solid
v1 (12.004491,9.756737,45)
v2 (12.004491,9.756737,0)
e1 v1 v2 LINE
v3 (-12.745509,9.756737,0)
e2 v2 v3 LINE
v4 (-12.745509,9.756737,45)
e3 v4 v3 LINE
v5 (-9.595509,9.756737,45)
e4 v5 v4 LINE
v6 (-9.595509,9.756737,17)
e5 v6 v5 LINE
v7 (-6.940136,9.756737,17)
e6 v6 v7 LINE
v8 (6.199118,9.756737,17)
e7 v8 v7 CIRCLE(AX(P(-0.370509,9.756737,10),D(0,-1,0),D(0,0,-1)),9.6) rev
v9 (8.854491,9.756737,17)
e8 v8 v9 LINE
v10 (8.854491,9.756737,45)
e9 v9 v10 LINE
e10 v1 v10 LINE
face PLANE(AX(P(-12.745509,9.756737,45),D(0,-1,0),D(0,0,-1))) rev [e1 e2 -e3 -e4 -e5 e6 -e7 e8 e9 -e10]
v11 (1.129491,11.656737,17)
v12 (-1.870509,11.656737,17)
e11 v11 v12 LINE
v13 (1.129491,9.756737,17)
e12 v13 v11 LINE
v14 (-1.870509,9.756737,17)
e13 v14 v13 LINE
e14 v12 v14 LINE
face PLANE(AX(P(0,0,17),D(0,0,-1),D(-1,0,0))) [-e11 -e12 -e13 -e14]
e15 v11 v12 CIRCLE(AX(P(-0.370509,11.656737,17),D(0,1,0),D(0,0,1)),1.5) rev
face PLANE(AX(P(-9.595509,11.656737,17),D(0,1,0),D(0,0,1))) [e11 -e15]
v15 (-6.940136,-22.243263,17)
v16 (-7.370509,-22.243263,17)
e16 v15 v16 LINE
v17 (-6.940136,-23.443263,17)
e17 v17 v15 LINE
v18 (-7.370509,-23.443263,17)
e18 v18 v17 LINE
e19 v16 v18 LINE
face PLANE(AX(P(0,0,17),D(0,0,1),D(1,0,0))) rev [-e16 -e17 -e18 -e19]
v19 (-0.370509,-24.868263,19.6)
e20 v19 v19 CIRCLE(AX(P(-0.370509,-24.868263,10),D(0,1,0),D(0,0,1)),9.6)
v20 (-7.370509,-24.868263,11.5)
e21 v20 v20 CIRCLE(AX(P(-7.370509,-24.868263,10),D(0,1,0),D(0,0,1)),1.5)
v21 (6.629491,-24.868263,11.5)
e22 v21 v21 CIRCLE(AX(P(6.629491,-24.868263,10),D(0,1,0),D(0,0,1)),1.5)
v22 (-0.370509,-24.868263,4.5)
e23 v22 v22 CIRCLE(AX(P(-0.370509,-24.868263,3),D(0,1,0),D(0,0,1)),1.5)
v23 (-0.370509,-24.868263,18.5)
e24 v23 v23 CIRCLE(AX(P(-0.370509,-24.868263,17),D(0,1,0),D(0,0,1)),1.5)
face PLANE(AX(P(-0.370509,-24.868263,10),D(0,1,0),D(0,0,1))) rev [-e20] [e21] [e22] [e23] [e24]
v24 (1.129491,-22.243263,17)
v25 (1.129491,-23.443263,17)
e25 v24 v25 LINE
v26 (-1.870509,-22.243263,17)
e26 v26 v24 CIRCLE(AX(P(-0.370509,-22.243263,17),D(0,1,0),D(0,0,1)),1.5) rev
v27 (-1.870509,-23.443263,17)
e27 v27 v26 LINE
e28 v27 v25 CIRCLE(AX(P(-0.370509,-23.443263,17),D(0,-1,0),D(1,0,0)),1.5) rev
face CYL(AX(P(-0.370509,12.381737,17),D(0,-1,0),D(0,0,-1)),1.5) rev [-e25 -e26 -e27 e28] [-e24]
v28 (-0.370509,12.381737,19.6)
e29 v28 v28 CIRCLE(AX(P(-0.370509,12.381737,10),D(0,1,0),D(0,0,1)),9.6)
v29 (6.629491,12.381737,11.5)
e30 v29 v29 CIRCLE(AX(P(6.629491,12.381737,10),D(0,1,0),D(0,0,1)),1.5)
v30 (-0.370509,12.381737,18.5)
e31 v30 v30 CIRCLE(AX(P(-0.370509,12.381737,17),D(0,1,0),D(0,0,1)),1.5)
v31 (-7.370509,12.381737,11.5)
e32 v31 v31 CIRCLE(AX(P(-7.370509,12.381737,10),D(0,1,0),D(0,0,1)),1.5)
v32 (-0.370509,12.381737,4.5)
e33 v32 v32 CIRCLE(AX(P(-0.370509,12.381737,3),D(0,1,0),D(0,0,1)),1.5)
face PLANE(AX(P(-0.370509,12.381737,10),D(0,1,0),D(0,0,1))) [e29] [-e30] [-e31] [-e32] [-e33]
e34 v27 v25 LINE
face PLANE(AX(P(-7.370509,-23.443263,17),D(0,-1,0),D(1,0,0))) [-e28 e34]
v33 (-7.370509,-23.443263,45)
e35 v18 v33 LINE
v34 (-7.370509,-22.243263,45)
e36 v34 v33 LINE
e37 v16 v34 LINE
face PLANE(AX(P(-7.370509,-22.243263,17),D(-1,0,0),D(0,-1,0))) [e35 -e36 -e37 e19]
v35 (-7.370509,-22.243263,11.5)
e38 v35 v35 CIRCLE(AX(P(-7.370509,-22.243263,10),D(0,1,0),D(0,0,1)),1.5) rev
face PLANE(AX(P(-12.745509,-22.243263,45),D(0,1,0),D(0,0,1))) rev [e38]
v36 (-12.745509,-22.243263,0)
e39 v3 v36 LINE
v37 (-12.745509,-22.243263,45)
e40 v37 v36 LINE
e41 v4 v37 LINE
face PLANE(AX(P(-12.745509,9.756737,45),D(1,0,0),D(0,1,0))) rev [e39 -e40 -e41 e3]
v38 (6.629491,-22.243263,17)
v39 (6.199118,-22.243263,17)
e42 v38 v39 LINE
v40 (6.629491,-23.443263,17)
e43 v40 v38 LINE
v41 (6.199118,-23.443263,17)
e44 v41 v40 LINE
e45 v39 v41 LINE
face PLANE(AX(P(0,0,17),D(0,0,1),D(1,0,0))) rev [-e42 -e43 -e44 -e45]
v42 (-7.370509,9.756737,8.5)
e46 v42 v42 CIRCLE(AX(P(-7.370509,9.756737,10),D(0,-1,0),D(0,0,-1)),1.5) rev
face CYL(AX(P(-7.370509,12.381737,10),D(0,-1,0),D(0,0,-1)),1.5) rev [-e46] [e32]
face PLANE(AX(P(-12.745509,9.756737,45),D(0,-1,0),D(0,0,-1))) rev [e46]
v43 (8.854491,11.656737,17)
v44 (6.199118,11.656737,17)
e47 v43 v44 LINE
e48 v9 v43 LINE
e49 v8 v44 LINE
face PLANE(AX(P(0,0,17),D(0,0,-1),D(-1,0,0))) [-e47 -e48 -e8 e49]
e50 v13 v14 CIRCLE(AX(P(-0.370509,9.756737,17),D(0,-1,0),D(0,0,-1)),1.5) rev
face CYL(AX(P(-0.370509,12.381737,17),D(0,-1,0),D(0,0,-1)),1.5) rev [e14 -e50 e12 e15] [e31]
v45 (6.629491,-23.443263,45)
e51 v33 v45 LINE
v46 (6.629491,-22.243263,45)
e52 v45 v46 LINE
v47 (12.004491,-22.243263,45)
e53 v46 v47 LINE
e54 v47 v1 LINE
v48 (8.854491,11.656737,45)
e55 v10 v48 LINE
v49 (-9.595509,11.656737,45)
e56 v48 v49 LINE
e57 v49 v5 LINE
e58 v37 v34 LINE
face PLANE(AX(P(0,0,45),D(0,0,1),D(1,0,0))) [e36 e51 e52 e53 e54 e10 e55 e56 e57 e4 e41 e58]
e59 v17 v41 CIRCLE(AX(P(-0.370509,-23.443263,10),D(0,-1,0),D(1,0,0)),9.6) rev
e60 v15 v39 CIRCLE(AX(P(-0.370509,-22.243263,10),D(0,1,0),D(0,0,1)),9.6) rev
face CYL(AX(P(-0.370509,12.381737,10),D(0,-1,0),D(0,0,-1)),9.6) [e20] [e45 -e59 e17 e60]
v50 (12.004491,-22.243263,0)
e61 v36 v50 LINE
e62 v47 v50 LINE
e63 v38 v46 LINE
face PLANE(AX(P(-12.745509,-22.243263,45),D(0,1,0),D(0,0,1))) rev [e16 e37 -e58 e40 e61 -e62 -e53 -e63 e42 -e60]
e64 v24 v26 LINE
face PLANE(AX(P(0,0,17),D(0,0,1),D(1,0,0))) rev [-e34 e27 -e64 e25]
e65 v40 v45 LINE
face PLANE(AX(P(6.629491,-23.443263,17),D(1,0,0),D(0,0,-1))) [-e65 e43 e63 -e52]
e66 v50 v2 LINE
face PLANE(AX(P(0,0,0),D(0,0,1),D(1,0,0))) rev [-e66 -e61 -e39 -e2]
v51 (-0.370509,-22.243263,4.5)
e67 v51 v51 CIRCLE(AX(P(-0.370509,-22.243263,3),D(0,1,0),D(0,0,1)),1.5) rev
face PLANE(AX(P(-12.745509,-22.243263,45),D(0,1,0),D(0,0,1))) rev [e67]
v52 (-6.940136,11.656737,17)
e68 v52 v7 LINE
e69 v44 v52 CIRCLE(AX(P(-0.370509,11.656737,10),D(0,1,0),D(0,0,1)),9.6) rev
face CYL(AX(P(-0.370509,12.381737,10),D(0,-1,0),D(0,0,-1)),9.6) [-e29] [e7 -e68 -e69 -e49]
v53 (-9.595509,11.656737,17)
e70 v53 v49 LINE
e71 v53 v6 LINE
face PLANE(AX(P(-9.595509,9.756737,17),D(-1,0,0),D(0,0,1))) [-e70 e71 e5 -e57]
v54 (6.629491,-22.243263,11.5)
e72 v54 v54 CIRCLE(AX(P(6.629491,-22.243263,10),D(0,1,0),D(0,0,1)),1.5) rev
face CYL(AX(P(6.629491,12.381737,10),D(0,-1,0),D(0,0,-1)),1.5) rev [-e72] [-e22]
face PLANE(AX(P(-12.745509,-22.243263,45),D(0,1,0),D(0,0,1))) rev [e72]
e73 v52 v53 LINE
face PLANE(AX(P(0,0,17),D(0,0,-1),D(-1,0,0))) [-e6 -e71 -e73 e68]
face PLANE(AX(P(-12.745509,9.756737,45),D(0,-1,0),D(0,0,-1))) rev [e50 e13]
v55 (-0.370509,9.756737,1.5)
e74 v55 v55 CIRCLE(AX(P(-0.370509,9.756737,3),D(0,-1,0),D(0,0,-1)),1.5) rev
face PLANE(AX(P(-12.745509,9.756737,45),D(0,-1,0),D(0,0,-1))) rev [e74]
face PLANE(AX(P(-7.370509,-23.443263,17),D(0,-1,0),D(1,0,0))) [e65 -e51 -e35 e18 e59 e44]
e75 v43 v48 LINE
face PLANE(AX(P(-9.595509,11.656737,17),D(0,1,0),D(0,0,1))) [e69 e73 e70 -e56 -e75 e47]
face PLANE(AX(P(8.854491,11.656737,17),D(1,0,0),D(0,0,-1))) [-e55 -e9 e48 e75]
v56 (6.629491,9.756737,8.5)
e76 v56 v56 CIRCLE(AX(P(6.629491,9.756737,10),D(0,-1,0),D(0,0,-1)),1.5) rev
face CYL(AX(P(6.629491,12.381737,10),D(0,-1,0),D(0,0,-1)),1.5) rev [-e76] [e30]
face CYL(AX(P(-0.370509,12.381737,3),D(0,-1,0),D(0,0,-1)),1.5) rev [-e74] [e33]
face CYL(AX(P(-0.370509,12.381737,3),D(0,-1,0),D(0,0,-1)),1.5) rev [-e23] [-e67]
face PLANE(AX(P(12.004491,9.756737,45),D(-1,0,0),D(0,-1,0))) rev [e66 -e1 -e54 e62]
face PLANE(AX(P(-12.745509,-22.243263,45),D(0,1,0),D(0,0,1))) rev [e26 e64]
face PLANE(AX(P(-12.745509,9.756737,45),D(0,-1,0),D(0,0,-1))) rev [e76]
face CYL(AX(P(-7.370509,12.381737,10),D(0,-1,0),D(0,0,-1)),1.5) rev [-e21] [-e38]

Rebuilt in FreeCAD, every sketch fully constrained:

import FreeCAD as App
import Part
import Sketcher
Q = App.Units.Quantity


def add_polygon(sketch, points):
    """Adds a closed chain of lines whose ends are joined by coincident constraints."""
    first, n = sketch.GeometryCount, len(points)
    for a, b in zip(points, points[1:] + points[:1]):
        sketch.addGeometry(Part.LineSegment(App.Vector(*a, 0), App.Vector(*b, 0)), False)
    for i in range(n):
        sketch.addConstraint(Sketcher.Constraint("Coincident", first + i, 2, first + (i + 1) % n, 1))

doc = App.newDocument("Part")
body = doc.addObject("PartDesign::Body", "Body")

# Sketch on XY plane
sketch1 = body.newObject("Sketcher::SketchObject", "Sketch")
sketch1.AttachmentSupport = (doc.getObject("XY_Plane"), [""])
sketch1.MapMode = "FlatFace"
add_polygon(sketch1, [(-13, 10), (-13, -22), (12, -22), (12, 10)])  # lines 0-3
sketch1.addConstraint(Sketcher.Constraint("Vertical", 0))
sketch1.addConstraint(Sketcher.Constraint("Horizontal", 1))
sketch1.addConstraint(Sketcher.Constraint("Vertical", 2))
sketch1.addConstraint(Sketcher.Constraint("Horizontal", 3))
sketch1.addConstraint(Sketcher.Constraint("DistanceY", 0, 2, 0, 1, Q("32 mm")))
sketch1.addConstraint(Sketcher.Constraint("DistanceX", 1, 1, 1, 2, Q("24.75 mm")))
sketch1.addConstraint(Sketcher.Constraint("DistanceX", 0, 2, -1, 1, Q("12.745509 mm")))
sketch1.addConstraint(Sketcher.Constraint("DistanceY", 0, 2, -1, 1, Q("22.243263 mm")))
pad1 = body.newObject("PartDesign::Pad", "Pad")
pad1.Profile = sketch1
pad1.Length = 45

# Sketch on XY plane
sketch2 = body.newObject("Sketcher::SketchObject", "Sketch001")
sketch2.AttachmentSupport = (doc.getObject("XY_Plane"), [""])
sketch2.MapMode = "FlatFace"
sketch2.AttachmentOffset = App.Placement(App.Vector(0, 0, 45), App.Rotation())
add_polygon(sketch2, [(-9.6, 11.7), (-9.6, 9.8), (8.9, 9.8), (8.9, 11.7)])  # lines 0-3
add_polygon(sketch2, [(-7.4, -22.2), (-7.4, -23.4), (6.6, -23.4), (6.6, -22.2)])  # lines 4-7
sketch2.addConstraint(Sketcher.Constraint("Vertical", 0))
sketch2.addConstraint(Sketcher.Constraint("Horizontal", 1))
sketch2.addConstraint(Sketcher.Constraint("Vertical", 2))
sketch2.addConstraint(Sketcher.Constraint("Horizontal", 3))
sketch2.addConstraint(Sketcher.Constraint("Vertical", 4))
sketch2.addConstraint(Sketcher.Constraint("Horizontal", 5))
sketch2.addConstraint(Sketcher.Constraint("Vertical", 6))
sketch2.addConstraint(Sketcher.Constraint("Horizontal", 7))
sketch2.addConstraint(Sketcher.Constraint("DistanceX", 5, 1, 5, 2, Q("14 mm")))
sketch2.addConstraint(Sketcher.Constraint("DistanceY", 0, 2, 0, 1, Q("1.9 mm")))
sketch2.addConstraint(Sketcher.Constraint("DistanceY", 4, 2, 4, 1, Q("1.2 mm")))
sketch2.addConstraint(Sketcher.Constraint("DistanceY", 6, 2, 1, 2, Q("32 mm")))
sketch2.addConstraint(Sketcher.Constraint("DistanceX", 1, 1, 1, 2, Q("18.45 mm")))
sketch2.addConstraint(Sketcher.Constraint("DistanceX", 0, 2, 4, 2, Q("2.225 mm")))
sketch2.addConstraint(Sketcher.Constraint("DistanceX", 0, 2, -1, 1, Q("9.595509 mm")))
sketch2.addConstraint(Sketcher.Constraint("DistanceY", -1, 1, 0, 2, Q("9.756737 mm")))
pad2 = body.newObject("PartDesign::Pad", "Pad001")
pad2.Profile = sketch2
pad2.Length = 28
pad2.Reversed = True

# Sketch on XZ plane
sketch3 = body.newObject("Sketcher::SketchObject", "Sketch002")
sketch3.AttachmentSupport = (doc.getObject("XZ_Plane"), [""])
sketch3.MapMode = "FlatFace"
sketch3.AttachmentOffset = App.Placement(App.Vector(0, 0, 6.243263), App.Rotation())
sketch3.addGeometry(Part.Circle(App.Vector(-0.4, 10, 0), App.Vector(0, 0, 1), 9.6), False)
sketch3.addGeometry(Part.Circle(App.Vector(-0.4, 3, 0), App.Vector(0, 0, 1), 1.5), False)
sketch3.addGeometry(Part.Circle(App.Vector(-7.4, 10, 0), App.Vector(0, 0, 1), 1.5), False)
sketch3.addGeometry(Part.Circle(App.Vector(6.6, 10, 0), App.Vector(0, 0, 1), 1.5), False)
sketch3.addGeometry(Part.Circle(App.Vector(-0.4, 17, 0), App.Vector(0, 0, 1), 1.5), False)
sketch3.addConstraint(Sketcher.Constraint("Equal", 1, 2))
sketch3.addConstraint(Sketcher.Constraint("Equal", 2, 3))
sketch3.addConstraint(Sketcher.Constraint("Equal", 3, 4))
sketch3.addConstraint(Sketcher.Constraint("Horizontal", 0, 3, 2, 3))
sketch3.addConstraint(Sketcher.Constraint("Horizontal", 2, 3, 3, 3))
sketch3.addConstraint(Sketcher.Constraint("Vertical", 0, 3, 1, 3))
sketch3.addConstraint(Sketcher.Constraint("Vertical", 1, 3, 4, 3))
sketch3.addConstraint(Sketcher.Constraint("Diameter", 1, Q("3 mm")))
sketch3.addConstraint(Sketcher.Constraint("Diameter", 0, Q("19.2 mm")))
sketch3.addConstraint(Sketcher.Constraint("DistanceY", -1, 1, 0, 3, Q("10 mm")))
sketch3.addConstraint(Sketcher.Constraint("DistanceY", -1, 1, 1, 3, Q("3 mm")))
sketch3.addConstraint(Sketcher.Constraint("DistanceY", -1, 1, 4, 3, Q("17 mm")))
sketch3.addConstraint(Sketcher.Constraint("DistanceX", 2, 3, 0, 3, Q("7 mm")))
sketch3.addConstraint(Sketcher.Constraint("DistanceX", 0, 3, 3, 3, Q("7 mm")))
sketch3.addConstraint(Sketcher.Constraint("DistanceX", 0, 3, -1, 1, Q("0.370509 mm")))
pad3 = body.newObject("PartDesign::Pad", "Pad002")
pad3.Profile = sketch3
pad3.Length = 37.25
pad3.Midplane = True

doc.recompute()
